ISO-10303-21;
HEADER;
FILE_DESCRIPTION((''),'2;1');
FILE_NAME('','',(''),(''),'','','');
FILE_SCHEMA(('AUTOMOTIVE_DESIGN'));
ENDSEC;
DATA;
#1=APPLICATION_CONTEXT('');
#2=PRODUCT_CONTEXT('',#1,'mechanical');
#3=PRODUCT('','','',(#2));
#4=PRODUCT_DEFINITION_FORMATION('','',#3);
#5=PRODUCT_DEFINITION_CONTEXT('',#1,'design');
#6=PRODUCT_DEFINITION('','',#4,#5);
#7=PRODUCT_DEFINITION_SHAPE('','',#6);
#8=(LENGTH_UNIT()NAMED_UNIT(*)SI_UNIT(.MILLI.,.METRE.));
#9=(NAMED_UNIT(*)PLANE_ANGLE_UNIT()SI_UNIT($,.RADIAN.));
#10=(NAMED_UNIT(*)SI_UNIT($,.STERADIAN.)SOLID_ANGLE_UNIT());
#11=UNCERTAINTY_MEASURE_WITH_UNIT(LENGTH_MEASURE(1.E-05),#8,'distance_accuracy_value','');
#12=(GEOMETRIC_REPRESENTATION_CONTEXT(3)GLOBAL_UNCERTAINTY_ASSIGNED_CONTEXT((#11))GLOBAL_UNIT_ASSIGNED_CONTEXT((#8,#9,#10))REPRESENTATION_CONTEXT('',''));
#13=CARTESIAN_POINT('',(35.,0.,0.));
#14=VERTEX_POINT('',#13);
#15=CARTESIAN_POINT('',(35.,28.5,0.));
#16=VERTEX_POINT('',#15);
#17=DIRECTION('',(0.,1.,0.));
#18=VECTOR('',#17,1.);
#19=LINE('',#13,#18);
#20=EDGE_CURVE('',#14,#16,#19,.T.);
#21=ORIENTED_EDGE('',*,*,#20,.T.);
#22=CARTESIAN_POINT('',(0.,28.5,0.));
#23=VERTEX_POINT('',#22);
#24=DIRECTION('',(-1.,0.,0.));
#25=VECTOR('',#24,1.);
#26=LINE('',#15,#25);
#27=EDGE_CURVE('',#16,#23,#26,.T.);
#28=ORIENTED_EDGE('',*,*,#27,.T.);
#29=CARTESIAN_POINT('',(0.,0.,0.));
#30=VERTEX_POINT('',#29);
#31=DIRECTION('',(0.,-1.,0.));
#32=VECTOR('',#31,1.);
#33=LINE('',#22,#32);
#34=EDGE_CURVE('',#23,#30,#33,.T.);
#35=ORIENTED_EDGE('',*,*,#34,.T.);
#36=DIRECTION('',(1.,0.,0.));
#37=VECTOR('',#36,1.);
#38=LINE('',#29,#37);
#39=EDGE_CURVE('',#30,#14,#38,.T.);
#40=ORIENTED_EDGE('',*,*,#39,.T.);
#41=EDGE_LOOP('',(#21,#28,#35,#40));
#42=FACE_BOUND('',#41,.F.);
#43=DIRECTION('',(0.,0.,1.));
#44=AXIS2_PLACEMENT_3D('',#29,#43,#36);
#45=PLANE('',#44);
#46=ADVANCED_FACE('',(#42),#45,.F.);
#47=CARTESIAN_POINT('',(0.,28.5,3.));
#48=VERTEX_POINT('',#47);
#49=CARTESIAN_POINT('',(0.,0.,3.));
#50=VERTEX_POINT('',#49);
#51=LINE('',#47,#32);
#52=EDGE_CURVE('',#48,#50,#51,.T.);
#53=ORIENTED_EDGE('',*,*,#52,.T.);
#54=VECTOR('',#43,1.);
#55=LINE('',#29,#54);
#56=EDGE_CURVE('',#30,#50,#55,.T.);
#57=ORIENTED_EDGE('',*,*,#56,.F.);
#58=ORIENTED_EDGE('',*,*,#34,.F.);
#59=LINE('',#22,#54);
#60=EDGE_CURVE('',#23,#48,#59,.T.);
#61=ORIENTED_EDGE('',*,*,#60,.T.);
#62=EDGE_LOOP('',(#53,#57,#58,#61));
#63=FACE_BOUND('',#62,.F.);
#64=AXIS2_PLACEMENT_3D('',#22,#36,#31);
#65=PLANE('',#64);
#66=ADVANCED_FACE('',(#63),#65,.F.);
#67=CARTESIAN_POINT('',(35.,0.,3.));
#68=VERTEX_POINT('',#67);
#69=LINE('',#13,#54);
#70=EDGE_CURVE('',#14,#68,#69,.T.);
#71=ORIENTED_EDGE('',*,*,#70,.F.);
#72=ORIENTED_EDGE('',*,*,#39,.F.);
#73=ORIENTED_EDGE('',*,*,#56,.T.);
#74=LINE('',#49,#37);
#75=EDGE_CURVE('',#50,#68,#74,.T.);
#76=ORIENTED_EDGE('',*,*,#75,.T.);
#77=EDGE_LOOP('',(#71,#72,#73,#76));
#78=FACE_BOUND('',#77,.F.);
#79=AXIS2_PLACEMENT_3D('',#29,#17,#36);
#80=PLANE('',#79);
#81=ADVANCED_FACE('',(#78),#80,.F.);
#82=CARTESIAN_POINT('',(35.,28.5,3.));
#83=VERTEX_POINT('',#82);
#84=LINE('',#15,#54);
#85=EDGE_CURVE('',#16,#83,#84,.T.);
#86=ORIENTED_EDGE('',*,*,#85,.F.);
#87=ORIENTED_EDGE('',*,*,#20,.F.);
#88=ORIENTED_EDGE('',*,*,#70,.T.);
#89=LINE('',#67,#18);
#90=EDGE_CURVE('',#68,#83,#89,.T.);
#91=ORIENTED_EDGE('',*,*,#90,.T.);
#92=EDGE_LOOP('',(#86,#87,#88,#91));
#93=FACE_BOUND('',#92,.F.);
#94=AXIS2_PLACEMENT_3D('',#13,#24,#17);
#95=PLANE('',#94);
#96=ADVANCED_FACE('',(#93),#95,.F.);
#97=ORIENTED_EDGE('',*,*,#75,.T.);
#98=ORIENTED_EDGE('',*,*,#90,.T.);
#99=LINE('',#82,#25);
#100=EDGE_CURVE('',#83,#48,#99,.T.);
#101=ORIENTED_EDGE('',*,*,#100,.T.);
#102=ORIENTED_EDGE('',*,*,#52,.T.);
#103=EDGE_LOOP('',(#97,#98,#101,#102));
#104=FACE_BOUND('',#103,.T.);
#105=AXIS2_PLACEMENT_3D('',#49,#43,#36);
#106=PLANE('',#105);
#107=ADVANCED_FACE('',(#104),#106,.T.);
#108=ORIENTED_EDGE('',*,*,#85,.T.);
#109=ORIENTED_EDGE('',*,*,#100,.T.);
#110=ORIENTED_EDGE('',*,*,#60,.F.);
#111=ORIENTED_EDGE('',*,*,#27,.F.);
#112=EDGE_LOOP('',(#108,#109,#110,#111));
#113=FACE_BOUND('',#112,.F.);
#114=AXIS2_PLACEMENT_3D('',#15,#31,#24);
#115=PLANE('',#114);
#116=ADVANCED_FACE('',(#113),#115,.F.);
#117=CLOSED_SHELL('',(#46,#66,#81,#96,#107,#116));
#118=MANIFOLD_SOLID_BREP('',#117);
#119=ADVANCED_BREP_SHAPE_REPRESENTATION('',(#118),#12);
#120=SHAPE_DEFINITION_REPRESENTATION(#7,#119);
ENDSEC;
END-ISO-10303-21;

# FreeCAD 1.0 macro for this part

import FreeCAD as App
import Part
import Sketcher
from FreeCAD import Vector
Q = App.Units.Quantity


def add_polygon(sketch, points):
    """Adds a closed chain of lines whose ends are joined by coincident constraints."""
    first, n = sketch.GeometryCount, len(points)
    for a, b in zip(points, points[1:] + points[:1]):
        sketch.addGeometry(Part.LineSegment(App.Vector(*a, 0), App.Vector(*b, 0)), False)
    for i in range(n):
        sketch.addConstraint(Sketcher.Constraint("Coincident", first + i, 2, first + (i + 1) % n, 1))

doc = App.newDocument("Part")
body = doc.addObject("PartDesign::Body", "Body")

# Sketch on XY plane
sketch1 = body.newObject("Sketcher::SketchObject", "Sketch")
sketch1.AttachmentSupport = (doc.getObject("XY_Plane"), [""])
sketch1.MapMode = "FlatFace"
add_polygon(sketch1, [(0, 28), (0, 0), (35, 0), (35, 28)])  # lines 0-3
sketch1.addConstraint([
    Sketcher.Constraint("Vertical", 0),
    Sketcher.Constraint("Horizontal", 1),
    Sketcher.Constraint("Vertical", 2),
    Sketcher.Constraint("Horizontal", 3),
    Sketcher.Constraint("Coincident", 0, 2, -1, 1),
    Sketcher.Constraint("DistanceX", 1, 1, 1, 2, Q("35 mm")),
    Sketcher.Constraint("DistanceY", 0, 2, 0, 1, Q("28.5 mm")),
])
pad1 = body.newObject("PartDesign::Pad", "Pad")
pad1.Profile = sketch1
pad1.Length = 3

doc.recompute()
